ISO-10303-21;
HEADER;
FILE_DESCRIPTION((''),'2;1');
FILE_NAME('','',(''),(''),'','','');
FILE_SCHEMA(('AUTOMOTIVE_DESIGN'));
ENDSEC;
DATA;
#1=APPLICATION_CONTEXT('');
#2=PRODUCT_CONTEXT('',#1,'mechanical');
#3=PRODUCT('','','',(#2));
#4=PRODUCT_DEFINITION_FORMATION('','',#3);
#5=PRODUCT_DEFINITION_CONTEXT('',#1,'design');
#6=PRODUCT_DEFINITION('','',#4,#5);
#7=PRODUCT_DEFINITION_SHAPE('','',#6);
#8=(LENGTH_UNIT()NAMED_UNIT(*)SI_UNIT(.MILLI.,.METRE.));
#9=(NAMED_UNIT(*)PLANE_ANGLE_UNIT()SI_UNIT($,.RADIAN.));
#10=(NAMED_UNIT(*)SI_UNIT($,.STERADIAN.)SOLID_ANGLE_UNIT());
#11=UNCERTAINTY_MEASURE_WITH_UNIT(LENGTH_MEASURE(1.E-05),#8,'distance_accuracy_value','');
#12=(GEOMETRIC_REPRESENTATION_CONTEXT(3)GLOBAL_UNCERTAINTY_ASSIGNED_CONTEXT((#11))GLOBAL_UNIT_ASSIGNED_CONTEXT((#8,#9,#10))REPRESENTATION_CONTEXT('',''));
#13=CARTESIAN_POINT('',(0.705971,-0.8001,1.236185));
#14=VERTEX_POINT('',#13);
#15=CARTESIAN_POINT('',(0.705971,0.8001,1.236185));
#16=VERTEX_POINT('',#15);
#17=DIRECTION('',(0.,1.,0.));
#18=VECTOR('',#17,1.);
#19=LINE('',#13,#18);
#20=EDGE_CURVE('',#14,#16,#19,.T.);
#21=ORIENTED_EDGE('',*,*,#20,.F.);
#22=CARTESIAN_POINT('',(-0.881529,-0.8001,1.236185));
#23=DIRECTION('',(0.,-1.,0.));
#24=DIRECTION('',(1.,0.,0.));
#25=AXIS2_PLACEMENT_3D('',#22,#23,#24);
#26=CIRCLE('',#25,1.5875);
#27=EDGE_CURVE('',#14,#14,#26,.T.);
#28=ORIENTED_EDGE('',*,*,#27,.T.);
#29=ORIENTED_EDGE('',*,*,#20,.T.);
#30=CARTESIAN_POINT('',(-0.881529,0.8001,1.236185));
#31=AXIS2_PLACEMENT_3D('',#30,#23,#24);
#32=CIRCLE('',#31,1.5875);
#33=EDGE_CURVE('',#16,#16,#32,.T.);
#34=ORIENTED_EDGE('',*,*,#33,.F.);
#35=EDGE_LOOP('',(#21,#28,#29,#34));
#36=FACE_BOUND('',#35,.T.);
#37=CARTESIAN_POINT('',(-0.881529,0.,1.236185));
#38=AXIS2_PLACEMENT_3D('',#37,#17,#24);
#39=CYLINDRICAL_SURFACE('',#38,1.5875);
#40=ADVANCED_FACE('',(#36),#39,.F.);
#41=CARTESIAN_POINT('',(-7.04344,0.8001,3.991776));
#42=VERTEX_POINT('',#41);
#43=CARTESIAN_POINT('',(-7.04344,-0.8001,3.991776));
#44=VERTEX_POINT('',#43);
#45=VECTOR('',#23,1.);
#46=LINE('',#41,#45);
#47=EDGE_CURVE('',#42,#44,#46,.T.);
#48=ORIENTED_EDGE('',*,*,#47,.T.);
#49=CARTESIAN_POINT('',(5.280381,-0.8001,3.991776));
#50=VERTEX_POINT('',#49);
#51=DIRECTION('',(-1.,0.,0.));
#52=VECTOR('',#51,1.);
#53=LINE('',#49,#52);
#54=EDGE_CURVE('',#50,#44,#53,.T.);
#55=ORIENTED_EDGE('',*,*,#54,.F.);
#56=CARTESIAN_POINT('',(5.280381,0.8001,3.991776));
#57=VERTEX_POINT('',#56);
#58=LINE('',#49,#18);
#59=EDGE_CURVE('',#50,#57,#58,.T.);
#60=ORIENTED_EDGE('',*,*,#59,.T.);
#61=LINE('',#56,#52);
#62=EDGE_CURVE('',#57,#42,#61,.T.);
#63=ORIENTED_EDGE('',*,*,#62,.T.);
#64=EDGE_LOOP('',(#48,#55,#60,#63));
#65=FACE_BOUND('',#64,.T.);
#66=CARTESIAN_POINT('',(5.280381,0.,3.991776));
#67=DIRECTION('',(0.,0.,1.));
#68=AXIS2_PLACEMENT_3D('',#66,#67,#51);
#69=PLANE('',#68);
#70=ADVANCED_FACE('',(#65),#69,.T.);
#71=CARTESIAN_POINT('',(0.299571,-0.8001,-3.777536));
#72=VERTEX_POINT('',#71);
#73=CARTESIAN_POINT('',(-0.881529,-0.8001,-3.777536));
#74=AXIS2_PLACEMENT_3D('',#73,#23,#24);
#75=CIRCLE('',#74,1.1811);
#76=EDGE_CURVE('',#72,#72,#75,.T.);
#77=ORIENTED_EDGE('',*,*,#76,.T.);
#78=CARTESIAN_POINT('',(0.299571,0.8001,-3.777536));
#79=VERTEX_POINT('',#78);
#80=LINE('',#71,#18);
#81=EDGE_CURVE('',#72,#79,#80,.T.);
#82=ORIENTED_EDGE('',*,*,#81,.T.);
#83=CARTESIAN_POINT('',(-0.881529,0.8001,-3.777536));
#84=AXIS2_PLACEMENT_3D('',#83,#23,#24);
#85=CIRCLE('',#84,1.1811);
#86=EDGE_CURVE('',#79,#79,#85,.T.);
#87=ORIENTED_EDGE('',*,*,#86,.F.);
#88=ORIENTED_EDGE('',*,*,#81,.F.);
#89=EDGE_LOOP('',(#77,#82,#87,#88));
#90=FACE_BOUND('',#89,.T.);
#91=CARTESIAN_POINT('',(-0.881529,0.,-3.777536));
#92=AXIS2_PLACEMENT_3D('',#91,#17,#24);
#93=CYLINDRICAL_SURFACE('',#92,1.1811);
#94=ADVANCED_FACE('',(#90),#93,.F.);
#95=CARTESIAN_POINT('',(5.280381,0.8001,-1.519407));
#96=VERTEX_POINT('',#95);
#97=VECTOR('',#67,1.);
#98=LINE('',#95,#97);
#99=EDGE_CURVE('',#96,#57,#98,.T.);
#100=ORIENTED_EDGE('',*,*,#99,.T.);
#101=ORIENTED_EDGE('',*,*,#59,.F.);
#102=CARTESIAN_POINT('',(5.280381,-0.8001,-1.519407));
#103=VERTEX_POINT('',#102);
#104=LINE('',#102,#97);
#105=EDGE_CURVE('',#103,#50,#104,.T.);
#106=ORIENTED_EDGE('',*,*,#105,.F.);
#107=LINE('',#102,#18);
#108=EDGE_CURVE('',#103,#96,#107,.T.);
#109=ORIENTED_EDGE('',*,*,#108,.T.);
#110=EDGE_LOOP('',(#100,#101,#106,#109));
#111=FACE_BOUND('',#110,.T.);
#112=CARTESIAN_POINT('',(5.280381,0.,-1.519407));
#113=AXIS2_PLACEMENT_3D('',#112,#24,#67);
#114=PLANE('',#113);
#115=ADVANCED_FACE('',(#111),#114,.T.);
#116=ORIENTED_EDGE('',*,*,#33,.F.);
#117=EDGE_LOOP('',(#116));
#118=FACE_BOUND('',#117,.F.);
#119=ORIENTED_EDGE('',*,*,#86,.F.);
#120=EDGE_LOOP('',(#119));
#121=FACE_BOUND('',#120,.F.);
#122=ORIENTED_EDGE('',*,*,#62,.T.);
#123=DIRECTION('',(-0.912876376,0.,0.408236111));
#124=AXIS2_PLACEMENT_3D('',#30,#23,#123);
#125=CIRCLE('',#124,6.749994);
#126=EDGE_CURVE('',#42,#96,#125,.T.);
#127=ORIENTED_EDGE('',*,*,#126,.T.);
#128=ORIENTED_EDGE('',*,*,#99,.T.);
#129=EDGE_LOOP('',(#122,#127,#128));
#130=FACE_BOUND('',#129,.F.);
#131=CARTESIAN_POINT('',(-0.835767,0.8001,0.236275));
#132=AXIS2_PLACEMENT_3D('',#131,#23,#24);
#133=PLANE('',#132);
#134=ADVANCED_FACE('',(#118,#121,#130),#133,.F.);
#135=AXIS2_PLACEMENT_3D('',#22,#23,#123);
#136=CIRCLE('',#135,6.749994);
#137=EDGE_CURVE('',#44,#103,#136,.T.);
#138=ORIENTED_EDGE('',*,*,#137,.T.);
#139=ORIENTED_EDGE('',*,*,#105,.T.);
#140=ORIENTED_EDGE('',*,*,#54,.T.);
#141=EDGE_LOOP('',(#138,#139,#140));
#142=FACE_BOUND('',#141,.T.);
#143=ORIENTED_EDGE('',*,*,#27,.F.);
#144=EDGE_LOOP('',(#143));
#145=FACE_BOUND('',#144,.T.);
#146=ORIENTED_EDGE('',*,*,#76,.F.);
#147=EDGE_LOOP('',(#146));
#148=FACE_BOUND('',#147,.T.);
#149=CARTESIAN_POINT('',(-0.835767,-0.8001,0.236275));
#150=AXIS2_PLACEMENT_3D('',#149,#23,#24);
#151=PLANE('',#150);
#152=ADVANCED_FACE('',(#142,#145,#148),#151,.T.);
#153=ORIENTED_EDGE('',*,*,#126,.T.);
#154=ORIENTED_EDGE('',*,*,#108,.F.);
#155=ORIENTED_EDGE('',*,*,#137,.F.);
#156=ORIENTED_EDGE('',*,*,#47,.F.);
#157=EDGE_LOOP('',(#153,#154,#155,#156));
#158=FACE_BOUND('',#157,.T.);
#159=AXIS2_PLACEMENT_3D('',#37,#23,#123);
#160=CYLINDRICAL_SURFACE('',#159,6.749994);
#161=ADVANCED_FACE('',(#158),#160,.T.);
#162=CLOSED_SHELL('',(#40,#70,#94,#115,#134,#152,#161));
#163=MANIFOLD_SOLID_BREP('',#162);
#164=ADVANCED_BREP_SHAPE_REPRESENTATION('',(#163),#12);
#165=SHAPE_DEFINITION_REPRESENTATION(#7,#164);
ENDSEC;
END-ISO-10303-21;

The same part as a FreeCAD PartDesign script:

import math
import FreeCAD as App
import Part
import Sketcher

V = App.Vector
Q = App.Units.Quantity

doc = App.newDocument("Part")
body = doc.addObject("PartDesign::Body", "Body")

# Sketch on XZ plane
sketch1 = body.newObject("Sketcher::SketchObject", "Sketch")
sketch1.AttachmentSupport = (doc.getObject("XZ_Plane"), [""])
sketch1.MapMode = "FlatFace"
sketch1.addGeometry([
    Part.LineSegment(V(5.3, 4, 0), V(-7, 4, 0)),  # 0
    Part.ArcOfCircle(Part.Circle(V(-0.9, 1.2, 0), V(0, 0, 1), 6.7), math.radians(156), math.radians(336)),  # 1
    Part.LineSegment(V(5.3, -1.5, 0), V(5.3, 4, 0)),  # 2
    Part.Circle(V(-0.9, -3.8, 0), V(0, 0, 1), 1.2),  # 3
    Part.Circle(V(-0.9, 1.2, 0), V(0, 0, 1), 1.6),  # 4
], False)
sketch1.addConstraint([
    Sketcher.Constraint("Coincident", 0, 2, 1, 1),
    Sketcher.Constraint("Coincident", 1, 2, 2, 1),
    Sketcher.Constraint("Coincident", 2, 2, 0, 1),
    Sketcher.Constraint("Horizontal", 0),
    Sketcher.Constraint("Vertical", 2),
    Sketcher.Constraint("Coincident", 4, 3, 1, 3),
    Sketcher.Constraint("Vertical", 1, 3, 3, 3),
    Sketcher.Constraint("Diameter", 3, Q("0.093 in")),
    Sketcher.Constraint("Diameter", 4, Q("0.125 in")),
    Sketcher.Constraint("Radius", 1, 6.749994),
    Sketcher.Constraint("DistanceX", 0, 2, 0, 1, 12.323821),
    Sketcher.Constraint("DistanceX", 1, 3, -1, 1, 0.881529),
    Sketcher.Constraint("DistanceX", 0, 2, -1, 1, 7.04344),
    Sketcher.Constraint("DistanceY", 3, 3, 1, 3, 5.01372),
    Sketcher.Constraint("DistanceY", -1, 1, 1, 3, 1.236185),
])
pad1 = body.newObject("PartDesign::Pad", "Pad")
pad1.Profile = sketch1
pad1.Length = Q("0.063 in")
pad1.Midplane = True

doc.recompute()
